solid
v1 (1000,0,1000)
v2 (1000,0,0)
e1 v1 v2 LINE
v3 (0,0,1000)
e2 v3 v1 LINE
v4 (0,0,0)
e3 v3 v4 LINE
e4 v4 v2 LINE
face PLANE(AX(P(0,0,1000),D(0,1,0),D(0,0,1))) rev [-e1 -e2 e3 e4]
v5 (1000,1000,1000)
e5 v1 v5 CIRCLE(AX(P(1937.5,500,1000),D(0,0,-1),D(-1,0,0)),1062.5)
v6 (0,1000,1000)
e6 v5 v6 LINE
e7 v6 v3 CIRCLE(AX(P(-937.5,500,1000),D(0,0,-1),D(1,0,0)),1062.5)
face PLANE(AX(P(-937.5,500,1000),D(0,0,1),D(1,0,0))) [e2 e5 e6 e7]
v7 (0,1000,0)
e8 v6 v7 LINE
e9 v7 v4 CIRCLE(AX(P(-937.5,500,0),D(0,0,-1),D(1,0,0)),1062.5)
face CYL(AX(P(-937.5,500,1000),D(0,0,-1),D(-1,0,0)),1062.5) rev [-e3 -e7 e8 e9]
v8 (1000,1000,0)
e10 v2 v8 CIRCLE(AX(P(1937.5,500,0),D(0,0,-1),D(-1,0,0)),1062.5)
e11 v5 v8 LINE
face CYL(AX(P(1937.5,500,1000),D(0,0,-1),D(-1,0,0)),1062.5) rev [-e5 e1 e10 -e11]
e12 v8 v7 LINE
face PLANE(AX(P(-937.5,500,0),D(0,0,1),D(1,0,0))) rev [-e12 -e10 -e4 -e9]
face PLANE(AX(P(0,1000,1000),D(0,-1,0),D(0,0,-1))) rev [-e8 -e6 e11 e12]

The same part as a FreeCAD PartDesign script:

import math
import FreeCAD as App
import Part
import Sketcher

V = App.Vector
Q = App.Units.Quantity

doc = App.newDocument("Part")
params = doc.addObject("Spreadsheet::Sheet", "Params")
for row, (alias, value) in enumerate([
    ("sketch1_radius", "1062.5 mm"),
    ("sketch1_width", "1000 mm"),
    ("pad1_length", "1000 mm"),
], start=1):
    params.set(f"A{row}", alias)
    params.set(f"B{row}", "=" + value)
    params.setAlias(f"B{row}", alias)

body = doc.addObject("PartDesign::Body", "Body")

# Sketch on XY plane
sketch1 = body.newObject("Sketcher::SketchObject", "Sketch")
sketch1.AttachmentSupport = (doc.getObject("XY_Plane"), [""])
sketch1.MapMode = "FlatFace"
sketch1.addGeometry(Part.LineSegment(V(0, 0, 0), V(1000, 0, 0)), False)
sketch1.addGeometry(Part.ArcOfCircle(Part.Circle(V(1937.5, 500, 0), V(0, 0, 1), 1062.5), math.radians(151.927513), math.radians(208.072487)), False)
sketch1.addGeometry(Part.LineSegment(V(1000, 1000, 0), V(0, 1000, 0)), False)
sketch1.addGeometry(Part.ArcOfCircle(Part.Circle(V(-937.5, 500, 0), V(0, 0, 1), 1062.5), math.radians(-28.072487), math.radians(28.072487)), False)
sketch1.addConstraint(Sketcher.Constraint("Coincident", 0, 2, 1, 2))
sketch1.addConstraint(Sketcher.Constraint("Coincident", 1, 1, 2, 1))
sketch1.addConstraint(Sketcher.Constraint("Coincident", 2, 2, 3, 2))
sketch1.addConstraint(Sketcher.Constraint("Coincident", 3, 1, 0, 1))
sketch1.addConstraint(Sketcher.Constraint("Horizontal", 0))
sketch1.addConstraint(Sketcher.Constraint("Horizontal", 2))
sketch1.addConstraint(Sketcher.Constraint("Equal", 1, 3))
sketch1.addConstraint(Sketcher.Constraint("PointOnObject", 0, 2, -1))
sketch1.addConstraint(Sketcher.Constraint("PointOnObject", 2, 2, -2))
sketch1.addConstraint(Sketcher.Constraint("Horizontal", 1, 3, 3, 3))
sketch1.addConstraint(Sketcher.Constraint("Equal", 0, 2))
sketch1.addConstraint(Sketcher.Constraint("Radius", 1, Q("1062.5 mm")))
sketch1.addConstraint(Sketcher.Constraint("DistanceX", 0, 1, 0, 2, Q("1000 mm")))
sketch1.addConstraint(Sketcher.Constraint("DistanceY", -1, 1, 1, 3, Q("500 mm")))
sketch1.setExpression("Constraints[11]", "Params.sketch1_radius")
sketch1.setExpression("Constraints[12]", "Params.sketch1_width")
pad1 = body.newObject("PartDesign::Pad", "Pad")
pad1.Profile = sketch1
pad1.setExpression("Length", "Params.pad1_length")

doc.recompute()
